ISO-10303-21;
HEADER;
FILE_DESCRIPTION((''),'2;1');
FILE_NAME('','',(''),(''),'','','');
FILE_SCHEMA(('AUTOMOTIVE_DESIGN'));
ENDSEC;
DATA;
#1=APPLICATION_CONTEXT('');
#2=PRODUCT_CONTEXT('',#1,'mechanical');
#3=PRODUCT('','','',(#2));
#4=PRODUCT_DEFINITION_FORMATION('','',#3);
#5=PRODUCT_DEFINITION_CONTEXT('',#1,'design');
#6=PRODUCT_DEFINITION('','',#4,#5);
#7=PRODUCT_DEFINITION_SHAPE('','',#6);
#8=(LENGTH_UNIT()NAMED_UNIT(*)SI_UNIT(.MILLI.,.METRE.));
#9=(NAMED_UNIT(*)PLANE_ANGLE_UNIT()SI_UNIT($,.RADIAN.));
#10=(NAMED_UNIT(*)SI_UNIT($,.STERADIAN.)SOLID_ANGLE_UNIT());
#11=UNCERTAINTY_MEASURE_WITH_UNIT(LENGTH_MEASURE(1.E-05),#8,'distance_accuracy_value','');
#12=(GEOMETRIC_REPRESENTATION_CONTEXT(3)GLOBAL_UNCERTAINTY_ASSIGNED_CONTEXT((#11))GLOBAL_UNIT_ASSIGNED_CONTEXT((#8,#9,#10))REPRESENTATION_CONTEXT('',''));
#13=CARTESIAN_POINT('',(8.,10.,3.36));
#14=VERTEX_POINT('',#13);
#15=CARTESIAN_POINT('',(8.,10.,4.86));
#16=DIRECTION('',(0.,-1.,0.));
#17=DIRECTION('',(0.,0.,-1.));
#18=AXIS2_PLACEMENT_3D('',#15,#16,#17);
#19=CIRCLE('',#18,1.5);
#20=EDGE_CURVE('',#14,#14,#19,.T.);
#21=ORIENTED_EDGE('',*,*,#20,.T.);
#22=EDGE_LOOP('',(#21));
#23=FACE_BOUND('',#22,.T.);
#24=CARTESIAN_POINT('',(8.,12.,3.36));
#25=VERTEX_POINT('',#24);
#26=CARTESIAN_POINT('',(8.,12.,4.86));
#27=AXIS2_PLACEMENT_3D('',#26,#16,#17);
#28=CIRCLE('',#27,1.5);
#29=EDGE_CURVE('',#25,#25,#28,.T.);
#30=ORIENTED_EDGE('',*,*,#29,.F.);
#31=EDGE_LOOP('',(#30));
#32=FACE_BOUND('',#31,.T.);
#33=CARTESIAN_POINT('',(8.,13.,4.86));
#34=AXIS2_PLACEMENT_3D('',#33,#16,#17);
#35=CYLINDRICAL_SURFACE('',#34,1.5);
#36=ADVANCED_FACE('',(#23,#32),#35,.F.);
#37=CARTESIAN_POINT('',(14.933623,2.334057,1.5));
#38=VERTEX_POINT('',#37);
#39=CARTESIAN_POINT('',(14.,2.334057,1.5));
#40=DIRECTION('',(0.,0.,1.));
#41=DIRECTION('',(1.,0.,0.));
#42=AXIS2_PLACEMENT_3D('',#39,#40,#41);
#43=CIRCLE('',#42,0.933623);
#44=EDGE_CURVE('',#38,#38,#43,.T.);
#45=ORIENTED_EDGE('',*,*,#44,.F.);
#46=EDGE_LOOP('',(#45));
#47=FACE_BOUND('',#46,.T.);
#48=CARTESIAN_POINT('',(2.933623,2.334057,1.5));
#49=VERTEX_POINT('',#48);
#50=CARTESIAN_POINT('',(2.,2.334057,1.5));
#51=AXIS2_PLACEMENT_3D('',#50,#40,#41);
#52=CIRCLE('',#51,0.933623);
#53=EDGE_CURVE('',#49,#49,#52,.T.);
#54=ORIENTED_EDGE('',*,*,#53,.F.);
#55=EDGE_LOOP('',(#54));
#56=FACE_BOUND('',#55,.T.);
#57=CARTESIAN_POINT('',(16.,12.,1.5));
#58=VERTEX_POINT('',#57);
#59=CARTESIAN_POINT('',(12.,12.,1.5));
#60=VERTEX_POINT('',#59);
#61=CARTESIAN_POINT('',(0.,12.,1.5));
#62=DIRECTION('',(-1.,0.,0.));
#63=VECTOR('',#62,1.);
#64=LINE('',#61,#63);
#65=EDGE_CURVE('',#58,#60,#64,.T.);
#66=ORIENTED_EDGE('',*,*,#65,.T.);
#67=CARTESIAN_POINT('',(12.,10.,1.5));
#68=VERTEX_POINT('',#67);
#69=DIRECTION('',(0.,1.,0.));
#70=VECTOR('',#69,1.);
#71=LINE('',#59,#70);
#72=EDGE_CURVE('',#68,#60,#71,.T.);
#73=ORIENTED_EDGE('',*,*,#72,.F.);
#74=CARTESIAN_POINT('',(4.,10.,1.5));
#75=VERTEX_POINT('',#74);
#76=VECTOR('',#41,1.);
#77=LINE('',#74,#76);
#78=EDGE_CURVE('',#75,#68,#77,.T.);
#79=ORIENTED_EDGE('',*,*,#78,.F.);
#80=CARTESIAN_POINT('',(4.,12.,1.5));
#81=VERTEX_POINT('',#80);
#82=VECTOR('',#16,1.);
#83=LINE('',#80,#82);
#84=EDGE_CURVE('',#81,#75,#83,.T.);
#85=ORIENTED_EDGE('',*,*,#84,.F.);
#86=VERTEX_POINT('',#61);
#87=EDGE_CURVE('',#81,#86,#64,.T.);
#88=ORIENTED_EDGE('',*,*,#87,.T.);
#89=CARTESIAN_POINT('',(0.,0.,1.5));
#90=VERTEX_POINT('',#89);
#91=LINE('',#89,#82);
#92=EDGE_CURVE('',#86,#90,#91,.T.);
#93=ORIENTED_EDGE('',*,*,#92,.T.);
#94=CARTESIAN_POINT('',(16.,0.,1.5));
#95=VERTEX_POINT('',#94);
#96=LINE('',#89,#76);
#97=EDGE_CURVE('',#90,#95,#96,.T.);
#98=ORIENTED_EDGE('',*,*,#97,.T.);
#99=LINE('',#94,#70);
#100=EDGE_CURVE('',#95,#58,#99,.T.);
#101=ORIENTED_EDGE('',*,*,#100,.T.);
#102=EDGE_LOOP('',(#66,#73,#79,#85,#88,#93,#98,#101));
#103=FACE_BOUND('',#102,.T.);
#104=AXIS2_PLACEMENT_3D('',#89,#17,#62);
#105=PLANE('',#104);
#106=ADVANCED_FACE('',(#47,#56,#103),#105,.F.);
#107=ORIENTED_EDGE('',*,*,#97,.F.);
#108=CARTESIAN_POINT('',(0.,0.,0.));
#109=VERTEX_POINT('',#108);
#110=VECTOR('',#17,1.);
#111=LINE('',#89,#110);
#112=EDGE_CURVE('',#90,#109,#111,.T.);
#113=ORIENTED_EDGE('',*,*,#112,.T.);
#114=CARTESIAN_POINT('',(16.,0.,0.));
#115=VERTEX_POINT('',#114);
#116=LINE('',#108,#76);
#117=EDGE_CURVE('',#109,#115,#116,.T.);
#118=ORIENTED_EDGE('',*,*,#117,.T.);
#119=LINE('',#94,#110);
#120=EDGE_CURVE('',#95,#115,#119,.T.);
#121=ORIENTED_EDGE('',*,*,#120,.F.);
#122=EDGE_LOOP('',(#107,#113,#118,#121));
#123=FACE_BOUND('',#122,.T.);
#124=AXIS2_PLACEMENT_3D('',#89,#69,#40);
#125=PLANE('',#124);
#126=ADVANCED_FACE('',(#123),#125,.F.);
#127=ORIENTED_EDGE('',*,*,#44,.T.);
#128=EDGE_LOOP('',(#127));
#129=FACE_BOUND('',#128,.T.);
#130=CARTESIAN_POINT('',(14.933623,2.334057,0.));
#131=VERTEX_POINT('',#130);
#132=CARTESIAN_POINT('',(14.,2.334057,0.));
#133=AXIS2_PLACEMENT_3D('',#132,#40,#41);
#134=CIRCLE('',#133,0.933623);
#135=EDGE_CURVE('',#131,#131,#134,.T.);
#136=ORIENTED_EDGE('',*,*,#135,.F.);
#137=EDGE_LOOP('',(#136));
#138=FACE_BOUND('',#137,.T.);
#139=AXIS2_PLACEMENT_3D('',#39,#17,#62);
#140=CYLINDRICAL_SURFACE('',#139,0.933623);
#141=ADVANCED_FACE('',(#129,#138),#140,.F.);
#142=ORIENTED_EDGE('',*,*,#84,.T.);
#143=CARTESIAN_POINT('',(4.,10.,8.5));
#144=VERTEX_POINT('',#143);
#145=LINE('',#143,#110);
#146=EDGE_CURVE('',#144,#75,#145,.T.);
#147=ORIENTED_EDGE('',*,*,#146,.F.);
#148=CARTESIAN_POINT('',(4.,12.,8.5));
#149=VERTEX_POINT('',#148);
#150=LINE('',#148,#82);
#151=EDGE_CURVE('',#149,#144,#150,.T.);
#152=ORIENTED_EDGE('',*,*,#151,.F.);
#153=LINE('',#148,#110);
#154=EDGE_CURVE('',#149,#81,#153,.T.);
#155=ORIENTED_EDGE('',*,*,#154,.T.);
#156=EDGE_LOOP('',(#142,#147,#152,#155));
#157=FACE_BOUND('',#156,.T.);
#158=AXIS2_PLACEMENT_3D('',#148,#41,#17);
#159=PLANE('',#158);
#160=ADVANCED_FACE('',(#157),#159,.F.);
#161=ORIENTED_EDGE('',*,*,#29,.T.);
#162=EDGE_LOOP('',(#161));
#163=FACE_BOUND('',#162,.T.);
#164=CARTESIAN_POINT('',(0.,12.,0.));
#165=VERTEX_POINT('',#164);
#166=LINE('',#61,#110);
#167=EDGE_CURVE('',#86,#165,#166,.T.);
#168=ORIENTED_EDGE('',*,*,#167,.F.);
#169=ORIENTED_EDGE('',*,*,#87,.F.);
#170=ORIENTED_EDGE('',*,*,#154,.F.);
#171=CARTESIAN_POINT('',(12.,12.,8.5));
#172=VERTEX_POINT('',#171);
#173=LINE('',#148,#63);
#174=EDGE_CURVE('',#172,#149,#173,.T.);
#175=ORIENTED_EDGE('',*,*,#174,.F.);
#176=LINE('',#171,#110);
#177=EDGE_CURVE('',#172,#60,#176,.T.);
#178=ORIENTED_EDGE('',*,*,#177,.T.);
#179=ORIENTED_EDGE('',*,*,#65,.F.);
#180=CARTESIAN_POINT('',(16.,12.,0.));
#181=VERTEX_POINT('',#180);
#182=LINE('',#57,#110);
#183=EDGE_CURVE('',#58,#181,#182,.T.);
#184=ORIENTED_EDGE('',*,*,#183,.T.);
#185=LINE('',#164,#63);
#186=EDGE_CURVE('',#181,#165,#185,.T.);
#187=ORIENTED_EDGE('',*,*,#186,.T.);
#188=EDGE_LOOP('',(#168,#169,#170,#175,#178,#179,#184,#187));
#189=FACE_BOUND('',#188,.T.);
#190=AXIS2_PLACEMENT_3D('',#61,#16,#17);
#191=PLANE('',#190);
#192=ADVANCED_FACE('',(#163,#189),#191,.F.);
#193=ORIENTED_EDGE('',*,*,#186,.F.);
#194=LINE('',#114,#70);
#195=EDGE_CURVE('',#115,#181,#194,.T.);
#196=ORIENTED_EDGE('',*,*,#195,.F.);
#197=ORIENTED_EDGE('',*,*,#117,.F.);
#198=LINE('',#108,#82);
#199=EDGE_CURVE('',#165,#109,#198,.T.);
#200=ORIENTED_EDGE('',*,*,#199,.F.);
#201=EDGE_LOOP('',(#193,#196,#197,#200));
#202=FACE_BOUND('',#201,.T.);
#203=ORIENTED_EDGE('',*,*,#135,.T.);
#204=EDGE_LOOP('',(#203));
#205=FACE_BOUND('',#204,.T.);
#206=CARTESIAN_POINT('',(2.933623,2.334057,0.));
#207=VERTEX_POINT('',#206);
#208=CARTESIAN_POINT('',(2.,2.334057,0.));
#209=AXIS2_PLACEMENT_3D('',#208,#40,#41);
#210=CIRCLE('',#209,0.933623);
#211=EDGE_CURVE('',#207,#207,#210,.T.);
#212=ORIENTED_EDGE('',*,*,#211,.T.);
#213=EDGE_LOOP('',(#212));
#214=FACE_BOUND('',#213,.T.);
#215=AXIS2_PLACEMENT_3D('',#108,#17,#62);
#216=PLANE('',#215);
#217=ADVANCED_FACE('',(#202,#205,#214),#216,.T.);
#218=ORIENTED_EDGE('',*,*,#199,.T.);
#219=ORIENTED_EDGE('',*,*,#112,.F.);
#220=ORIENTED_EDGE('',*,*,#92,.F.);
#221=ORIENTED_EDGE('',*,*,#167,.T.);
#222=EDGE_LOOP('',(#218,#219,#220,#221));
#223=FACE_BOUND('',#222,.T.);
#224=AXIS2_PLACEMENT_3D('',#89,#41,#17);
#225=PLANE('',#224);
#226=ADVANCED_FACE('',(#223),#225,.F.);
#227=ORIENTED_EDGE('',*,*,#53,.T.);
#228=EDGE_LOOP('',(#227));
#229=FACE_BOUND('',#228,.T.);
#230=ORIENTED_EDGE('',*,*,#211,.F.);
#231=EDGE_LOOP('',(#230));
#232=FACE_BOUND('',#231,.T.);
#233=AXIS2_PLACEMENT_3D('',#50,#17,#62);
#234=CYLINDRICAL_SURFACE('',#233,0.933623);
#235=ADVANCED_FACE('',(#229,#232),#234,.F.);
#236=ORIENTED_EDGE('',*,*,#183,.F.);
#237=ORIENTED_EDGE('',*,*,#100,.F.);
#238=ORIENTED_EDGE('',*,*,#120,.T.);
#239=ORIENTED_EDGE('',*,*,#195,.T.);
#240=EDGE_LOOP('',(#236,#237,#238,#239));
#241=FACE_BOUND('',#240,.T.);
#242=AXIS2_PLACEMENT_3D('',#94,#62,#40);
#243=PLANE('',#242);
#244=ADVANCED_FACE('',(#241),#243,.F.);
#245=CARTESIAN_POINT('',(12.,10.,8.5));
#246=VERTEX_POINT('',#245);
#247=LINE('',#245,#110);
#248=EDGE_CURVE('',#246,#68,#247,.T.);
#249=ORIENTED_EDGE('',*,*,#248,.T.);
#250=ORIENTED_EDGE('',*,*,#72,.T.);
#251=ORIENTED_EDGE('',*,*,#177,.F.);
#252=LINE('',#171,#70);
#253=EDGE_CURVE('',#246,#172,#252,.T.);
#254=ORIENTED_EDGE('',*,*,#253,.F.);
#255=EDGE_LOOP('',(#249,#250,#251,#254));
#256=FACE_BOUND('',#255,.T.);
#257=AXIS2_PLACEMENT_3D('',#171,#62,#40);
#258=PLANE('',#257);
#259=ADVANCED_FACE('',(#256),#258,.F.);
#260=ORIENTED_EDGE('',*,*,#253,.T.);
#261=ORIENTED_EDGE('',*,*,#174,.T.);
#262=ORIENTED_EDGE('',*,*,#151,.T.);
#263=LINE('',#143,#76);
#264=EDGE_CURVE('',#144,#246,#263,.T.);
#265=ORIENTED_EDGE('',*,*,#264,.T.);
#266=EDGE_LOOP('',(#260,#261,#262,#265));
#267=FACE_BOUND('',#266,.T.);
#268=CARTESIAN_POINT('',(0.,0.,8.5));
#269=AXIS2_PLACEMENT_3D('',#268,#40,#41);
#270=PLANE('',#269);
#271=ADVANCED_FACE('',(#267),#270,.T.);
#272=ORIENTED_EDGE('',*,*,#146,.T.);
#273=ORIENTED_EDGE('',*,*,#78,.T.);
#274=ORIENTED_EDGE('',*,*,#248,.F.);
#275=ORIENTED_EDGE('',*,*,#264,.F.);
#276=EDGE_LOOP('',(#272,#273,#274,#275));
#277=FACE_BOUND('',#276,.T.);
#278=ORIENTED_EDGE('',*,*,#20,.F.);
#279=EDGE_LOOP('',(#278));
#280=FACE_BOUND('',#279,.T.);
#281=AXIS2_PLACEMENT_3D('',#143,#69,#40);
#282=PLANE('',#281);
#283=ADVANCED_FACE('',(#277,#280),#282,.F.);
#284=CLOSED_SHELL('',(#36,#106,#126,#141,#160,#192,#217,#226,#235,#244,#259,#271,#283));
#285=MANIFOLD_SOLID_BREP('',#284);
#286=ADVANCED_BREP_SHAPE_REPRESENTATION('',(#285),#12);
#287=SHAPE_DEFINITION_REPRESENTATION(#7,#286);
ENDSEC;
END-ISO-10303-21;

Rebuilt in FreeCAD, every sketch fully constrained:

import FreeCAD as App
import Part
import Sketcher

V = App.Vector
Q = App.Units.Quantity

doc = App.newDocument("Part")
body = doc.addObject("PartDesign::Body", "Body")

sketch1 = body.newObject("Sketcher::SketchObject", "Sketch")
sketch1.AttachmentSupport = (doc.getObject("XY_Plane"), [""])
sketch1.MapMode = "FlatFace"
sketch1.addGeometry(Part.LineSegment(V(0, 12, 0), V(0, 0, 0)), False)
sketch1.addGeometry(Part.LineSegment(V(0, 0, 0), V(16, 0, 0)), False)
sketch1.addGeometry(Part.LineSegment(V(16, 0, 0), V(16, 12, 0)), False)
sketch1.addGeometry(Part.LineSegment(V(16, 12, 0), V(0, 12, 0)), False)
sketch1.addGeometry(Part.Circle(V(2, 2.3, 0), V(0, 0, 1), 0.9), False)
sketch1.addGeometry(Part.Circle(V(14, 2.3, 0), V(0, 0, 1), 0.9), False)
sketch1.addConstraint(Sketcher.Constraint("Coincident", 0, 2, 1, 1))
sketch1.addConstraint(Sketcher.Constraint("Coincident", 1, 2, 2, 1))
sketch1.addConstraint(Sketcher.Constraint("Coincident", 2, 2, 3, 1))
sketch1.addConstraint(Sketcher.Constraint("Coincident", 3, 2, 0, 1))
sketch1.addConstraint(Sketcher.Constraint("Vertical", 0))
sketch1.addConstraint(Sketcher.Constraint("Horizontal", 1))
sketch1.addConstraint(Sketcher.Constraint("Vertical", 2))
sketch1.addConstraint(Sketcher.Constraint("Horizontal", 3))
sketch1.addConstraint(Sketcher.Constraint("Coincident", 0, 2, -1, 1))
sketch1.addConstraint(Sketcher.Constraint("Equal", 4, 5))
sketch1.addConstraint(Sketcher.Constraint("Horizontal", 4, 3, 5, 3))
sketch1.addConstraint(Sketcher.Constraint("DistanceX", 1, 1, 1, 2, Q("16 mm")))
sketch1.addConstraint(Sketcher.Constraint("DistanceY", 0, 2, 0, 1, Q("12 mm")))
sketch1.addConstraint(Sketcher.Constraint("DistanceX", -1, 1, 4, 3, Q("2 mm")))
sketch1.addConstraint(Sketcher.Constraint("DistanceX", -1, 1, 5, 3, Q("14 mm")))
sketch1.addConstraint(Sketcher.Constraint("Diameter", 4, Q("1.867246 mm")))
sketch1.addConstraint(Sketcher.Constraint("DistanceY", -1, 1, 4, 3, Q("2.334057 mm")))
pad1 = body.newObject("PartDesign::Pad", "Pad")
pad1.Profile = sketch1
pad1.Length = 1.5

sketch2 = body.newObject("Sketcher::SketchObject", "Sketch001")
sketch2.AttachmentSupport = (doc.getObject("XY_Plane"), [""])
sketch2.MapMode = "FlatFace"
sketch2.AttachmentOffset = App.Placement(V(0, 0, 1.5), App.Rotation())
sketch2.addGeometry(Part.LineSegment(V(4, 12, 0), V(4, 10, 0)), False)
sketch2.addGeometry(Part.LineSegment(V(4, 10, 0), V(12, 10, 0)), False)
sketch2.addGeometry(Part.LineSegment(V(12, 10, 0), V(12, 12, 0)), False)
sketch2.addGeometry(Part.LineSegment(V(12, 12, 0), V(4, 12, 0)), False)
sketch2.addConstraint(Sketcher.Constraint("Coincident", 0, 2, 1, 1))
sketch2.addConstraint(Sketcher.Constraint("Coincident", 1, 2, 2, 1))
sketch2.addConstraint(Sketcher.Constraint("Coincident", 2, 2, 3, 1))
sketch2.addConstraint(Sketcher.Constraint("Coincident", 3, 2, 0, 1))
sketch2.addConstraint(Sketcher.Constraint("Vertical", 0))
sketch2.addConstraint(Sketcher.Constraint("Horizontal", 1))
sketch2.addConstraint(Sketcher.Constraint("Vertical", 2))
sketch2.addConstraint(Sketcher.Constraint("Horizontal", 3))
sketch2.addConstraint(Sketcher.Constraint("DistanceX", 1, 1, 1, 2, Q("8 mm")))
sketch2.addConstraint(Sketcher.Constraint("DistanceY", 0, 2, 0, 1, Q("2 mm")))
sketch2.addConstraint(Sketcher.Constraint("DistanceX", -1, 1, 0, 2, Q("4 mm")))
sketch2.addConstraint(Sketcher.Constraint("DistanceY", -1, 1, 0, 2, Q("10 mm")))
pad2 = body.newObject("PartDesign::Pad", "Pad001")
pad2.Profile = sketch2
pad2.Length = 7

sketch3 = body.newObject("Sketcher::SketchObject", "Sketch002")
sketch3.AttachmentSupport = (doc.getObject("XZ_Plane"), [""])
sketch3.MapMode = "FlatFace"
sketch3.AttachmentOffset = App.Placement(V(0, 0, -10), App.Rotation())
sketch3.addGeometry(Part.Circle(V(8, 4.9, 0), V(0, 0, 1), 1.5), False)
sketch3.addConstraint(Sketcher.Constraint("Diameter", 0, Q("3 mm")))
sketch3.addConstraint(Sketcher.Constraint("DistanceX", -1, 1, 0, 3, Q("8 mm")))
sketch3.addConstraint(Sketcher.Constraint("DistanceY", -1, 1, 0, 3, Q("4.86 mm")))
pocket1 = body.newObject("PartDesign::Pocket", "Pocket")
pocket1.Profile = sketch3
pocket1.Length = 3

doc.recompute()
